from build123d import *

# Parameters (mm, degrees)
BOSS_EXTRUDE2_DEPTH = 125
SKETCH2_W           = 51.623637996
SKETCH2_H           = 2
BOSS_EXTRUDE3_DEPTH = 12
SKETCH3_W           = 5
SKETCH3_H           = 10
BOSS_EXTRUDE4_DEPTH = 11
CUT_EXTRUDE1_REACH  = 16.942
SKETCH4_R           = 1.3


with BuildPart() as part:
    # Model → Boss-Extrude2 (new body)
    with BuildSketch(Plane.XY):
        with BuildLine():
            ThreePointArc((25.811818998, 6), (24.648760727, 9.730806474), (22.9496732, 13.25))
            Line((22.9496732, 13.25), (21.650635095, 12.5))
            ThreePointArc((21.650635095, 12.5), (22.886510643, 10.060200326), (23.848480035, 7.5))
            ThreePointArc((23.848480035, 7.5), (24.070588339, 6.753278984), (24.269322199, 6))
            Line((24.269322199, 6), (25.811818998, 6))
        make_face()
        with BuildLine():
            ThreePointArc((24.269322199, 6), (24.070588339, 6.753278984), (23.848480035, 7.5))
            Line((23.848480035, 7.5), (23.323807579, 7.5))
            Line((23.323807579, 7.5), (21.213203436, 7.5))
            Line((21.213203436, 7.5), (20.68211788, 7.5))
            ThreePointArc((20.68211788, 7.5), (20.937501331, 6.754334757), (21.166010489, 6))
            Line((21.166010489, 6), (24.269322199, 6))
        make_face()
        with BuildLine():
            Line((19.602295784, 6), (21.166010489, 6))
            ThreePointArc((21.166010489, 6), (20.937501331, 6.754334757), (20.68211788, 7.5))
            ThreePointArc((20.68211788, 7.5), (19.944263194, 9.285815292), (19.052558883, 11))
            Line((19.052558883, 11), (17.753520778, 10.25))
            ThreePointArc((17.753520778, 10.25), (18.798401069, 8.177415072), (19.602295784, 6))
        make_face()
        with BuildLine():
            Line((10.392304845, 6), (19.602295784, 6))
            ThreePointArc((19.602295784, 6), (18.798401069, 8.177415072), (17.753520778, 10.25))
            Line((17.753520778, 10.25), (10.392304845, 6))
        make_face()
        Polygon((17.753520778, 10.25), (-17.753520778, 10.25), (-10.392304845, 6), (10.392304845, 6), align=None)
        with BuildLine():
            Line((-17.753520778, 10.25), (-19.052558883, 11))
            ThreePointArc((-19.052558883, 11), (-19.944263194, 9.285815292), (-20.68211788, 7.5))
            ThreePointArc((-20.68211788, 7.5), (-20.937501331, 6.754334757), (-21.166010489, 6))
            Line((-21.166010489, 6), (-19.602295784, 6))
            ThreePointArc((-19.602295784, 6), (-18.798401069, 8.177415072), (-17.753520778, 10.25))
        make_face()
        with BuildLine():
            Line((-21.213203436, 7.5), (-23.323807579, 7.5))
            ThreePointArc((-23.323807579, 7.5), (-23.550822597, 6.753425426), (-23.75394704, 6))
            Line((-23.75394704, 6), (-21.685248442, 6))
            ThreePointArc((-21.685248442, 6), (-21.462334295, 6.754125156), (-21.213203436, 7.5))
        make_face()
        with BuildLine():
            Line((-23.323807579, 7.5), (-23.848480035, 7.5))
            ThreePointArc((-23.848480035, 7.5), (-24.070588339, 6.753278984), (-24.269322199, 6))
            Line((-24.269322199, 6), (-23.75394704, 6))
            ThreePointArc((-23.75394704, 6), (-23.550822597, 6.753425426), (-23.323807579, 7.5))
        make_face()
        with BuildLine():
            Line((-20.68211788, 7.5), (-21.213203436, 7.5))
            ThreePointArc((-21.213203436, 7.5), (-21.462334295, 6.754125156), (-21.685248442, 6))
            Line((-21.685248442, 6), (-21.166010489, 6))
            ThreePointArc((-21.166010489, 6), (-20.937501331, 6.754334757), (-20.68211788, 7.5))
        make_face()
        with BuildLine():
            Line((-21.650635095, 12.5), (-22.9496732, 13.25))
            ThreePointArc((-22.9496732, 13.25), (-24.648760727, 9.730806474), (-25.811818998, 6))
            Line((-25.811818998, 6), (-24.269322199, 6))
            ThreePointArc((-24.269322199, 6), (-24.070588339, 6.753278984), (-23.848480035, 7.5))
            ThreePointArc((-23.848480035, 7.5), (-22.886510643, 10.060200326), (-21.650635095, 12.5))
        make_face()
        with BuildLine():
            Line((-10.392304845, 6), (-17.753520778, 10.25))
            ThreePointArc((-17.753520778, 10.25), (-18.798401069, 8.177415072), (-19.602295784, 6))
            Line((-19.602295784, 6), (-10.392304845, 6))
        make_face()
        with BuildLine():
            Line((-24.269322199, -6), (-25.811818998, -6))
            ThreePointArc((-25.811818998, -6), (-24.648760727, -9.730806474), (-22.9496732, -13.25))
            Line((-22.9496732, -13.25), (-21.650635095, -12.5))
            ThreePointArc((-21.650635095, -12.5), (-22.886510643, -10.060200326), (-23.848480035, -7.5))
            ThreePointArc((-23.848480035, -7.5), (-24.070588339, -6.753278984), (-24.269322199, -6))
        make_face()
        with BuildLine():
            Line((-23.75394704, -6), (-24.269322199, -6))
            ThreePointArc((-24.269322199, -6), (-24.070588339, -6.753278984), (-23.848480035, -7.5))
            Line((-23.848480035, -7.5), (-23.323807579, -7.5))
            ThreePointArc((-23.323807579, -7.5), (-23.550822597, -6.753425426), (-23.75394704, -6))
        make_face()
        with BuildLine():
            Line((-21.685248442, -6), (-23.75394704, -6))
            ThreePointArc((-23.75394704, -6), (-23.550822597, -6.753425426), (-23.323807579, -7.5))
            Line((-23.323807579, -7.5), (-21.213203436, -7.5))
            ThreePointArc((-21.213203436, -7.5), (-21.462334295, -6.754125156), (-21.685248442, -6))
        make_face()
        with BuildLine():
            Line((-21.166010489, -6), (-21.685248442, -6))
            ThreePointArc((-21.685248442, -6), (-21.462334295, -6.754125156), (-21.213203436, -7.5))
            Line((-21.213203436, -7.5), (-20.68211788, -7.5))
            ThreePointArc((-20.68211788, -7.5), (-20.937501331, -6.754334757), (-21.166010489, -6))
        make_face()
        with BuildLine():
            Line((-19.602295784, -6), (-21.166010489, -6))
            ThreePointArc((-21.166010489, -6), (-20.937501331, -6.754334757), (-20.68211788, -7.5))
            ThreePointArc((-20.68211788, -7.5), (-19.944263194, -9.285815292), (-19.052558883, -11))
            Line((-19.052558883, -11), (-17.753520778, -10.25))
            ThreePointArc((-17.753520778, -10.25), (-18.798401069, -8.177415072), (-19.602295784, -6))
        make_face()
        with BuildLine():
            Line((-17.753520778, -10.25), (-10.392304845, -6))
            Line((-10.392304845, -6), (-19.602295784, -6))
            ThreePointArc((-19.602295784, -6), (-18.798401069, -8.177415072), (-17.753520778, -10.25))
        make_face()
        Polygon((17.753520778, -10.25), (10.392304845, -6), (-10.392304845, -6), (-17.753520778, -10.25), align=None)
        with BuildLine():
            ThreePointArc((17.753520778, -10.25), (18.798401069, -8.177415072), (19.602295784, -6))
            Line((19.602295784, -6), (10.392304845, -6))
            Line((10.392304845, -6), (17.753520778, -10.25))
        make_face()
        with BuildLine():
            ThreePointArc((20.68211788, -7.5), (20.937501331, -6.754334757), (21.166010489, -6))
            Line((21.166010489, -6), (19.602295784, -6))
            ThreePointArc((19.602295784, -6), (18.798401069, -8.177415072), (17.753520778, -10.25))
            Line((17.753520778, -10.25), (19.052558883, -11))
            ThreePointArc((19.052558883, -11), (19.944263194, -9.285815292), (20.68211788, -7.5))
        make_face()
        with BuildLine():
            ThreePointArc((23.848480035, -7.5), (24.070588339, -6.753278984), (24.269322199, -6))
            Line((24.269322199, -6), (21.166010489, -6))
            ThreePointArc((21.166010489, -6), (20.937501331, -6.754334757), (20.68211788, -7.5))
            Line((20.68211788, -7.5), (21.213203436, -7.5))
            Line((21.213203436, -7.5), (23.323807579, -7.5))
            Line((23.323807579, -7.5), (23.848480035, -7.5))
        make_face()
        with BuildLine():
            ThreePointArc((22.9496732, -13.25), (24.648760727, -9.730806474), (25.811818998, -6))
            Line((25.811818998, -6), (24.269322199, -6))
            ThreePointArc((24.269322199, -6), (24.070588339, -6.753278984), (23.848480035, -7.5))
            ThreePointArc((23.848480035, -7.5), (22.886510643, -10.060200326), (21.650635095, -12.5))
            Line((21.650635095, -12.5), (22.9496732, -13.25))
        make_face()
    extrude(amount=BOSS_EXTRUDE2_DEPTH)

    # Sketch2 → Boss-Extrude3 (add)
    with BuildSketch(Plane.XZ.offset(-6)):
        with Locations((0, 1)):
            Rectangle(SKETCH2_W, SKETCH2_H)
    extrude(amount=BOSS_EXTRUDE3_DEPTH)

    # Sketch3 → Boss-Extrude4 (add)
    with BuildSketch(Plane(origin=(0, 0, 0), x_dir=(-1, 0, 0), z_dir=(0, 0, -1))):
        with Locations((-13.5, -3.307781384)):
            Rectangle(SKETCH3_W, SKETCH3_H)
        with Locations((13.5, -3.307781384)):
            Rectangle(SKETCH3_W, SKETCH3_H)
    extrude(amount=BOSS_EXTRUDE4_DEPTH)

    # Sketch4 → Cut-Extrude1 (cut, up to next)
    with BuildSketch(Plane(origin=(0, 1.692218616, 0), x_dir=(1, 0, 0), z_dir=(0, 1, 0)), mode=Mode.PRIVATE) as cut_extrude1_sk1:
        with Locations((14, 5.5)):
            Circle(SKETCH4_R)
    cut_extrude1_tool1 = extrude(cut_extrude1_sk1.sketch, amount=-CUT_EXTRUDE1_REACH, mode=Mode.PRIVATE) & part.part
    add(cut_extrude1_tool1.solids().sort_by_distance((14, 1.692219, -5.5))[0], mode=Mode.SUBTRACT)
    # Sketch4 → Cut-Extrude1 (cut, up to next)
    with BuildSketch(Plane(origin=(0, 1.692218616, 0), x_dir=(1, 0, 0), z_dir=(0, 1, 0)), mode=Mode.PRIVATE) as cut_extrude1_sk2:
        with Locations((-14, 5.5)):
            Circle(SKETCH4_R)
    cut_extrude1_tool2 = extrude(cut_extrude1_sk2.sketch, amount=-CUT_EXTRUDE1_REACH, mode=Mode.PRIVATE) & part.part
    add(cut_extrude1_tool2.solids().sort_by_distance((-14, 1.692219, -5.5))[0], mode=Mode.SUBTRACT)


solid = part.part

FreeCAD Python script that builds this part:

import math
import FreeCAD as App
import Part
import Sketcher
from FreeCAD import Vector
Q = App.Units.Quantity

doc = App.newDocument("Part")
params = doc.addObject("Spreadsheet::Sheet", "Params")
for row, (alias, value) in enumerate([
    ("sketch1_radius", "25 mm"),
    ("sketch1_radius2", "22 mm"),
    ("sketch1_radius3", "26.5 mm"),
    ("pad1_length", "125 mm"),
    ("sketch2_height", "2 mm"),
    ("pad2_length", "12 mm"),
    ("sketch3_width", "5 mm"),
    ("sketch3_height", "10 mm"),
    ("pad3_length", "11 mm"),
    ("sketch4_diameter", "2.6 mm"),
    ("sketch5_diameter", "2.6 mm"),
], start=1):
    params.set(f"A{row}", alias)
    params.set(f"B{row}", "=" + value)
    params.setAlias(f"B{row}", alias)

body = doc.addObject("PartDesign::Body", "Body")
body.AllowCompound = True

sketch1 = body.newObject("Sketcher::SketchObject", "Sketch")
sketch1.AttachmentSupport = (doc.getObject("XY_Plane"), [""])
sketch1.MapMode = "FlatFace"
sketch1.addGeometry([
    Part.ArcOfCircle(Part.Circle(Vector(0, 0, 0), Vector(0, 0, 1), 26.5), math.radians(13.09), math.radians(30)),
    Part.LineSegment(Vector(22.9, 13.2, 0), Vector(21.7, 12.5, 0)),
    Part.ArcOfCircle(Part.Circle(Vector(0, 0, 0), Vector(0, 0, 1), 25), math.radians(17.46), math.radians(30)),
    Part.LineSegment(Vector(23.8, 7.5, 0), Vector(20.7, 7.5, 0)),
    Part.ArcOfCircle(Part.Circle(Vector(0, 0, 0), Vector(0, 0, 1), 22), math.radians(19.93), math.radians(30)),
    Part.LineSegment(Vector(19.1, 11, 0), Vector(17.8, 10.2, 0)),
    Part.LineSegment(Vector(17.8, 10.2, 0), Vector(-17.8, 10.2, 0)),
    Part.LineSegment(Vector(-17.8, 10.2, 0), Vector(-19.1, 11, 0)),
    Part.ArcOfCircle(Part.Circle(Vector(0, 0, 0), Vector(0, 0, 1), 22), math.radians(150), math.radians(160.07)),
    Part.LineSegment(Vector(-20.7, 7.5, 0), Vector(-23.8, 7.5, 0)),
    Part.ArcOfCircle(Part.Circle(Vector(0, 0, 0), Vector(0, 0, 1), 25), math.radians(150), math.radians(162.54)),
    Part.LineSegment(Vector(-21.7, 12.5, 0), Vector(-22.9, 13.2, 0)),
    Part.ArcOfCircle(Part.Circle(Vector(0, 0, 0), Vector(0, 0, 1), 26.5), math.radians(150), math.radians(166.91)),
    Part.LineSegment(Vector(-25.8, 6, 0), Vector(25.8, 6, 0)),
    Part.ArcOfCircle(Part.Circle(Vector(0, 0, 0), Vector(0, 0, 1), 26.5), math.radians(-166.91), math.radians(-150)),
    Part.LineSegment(Vector(-22.9, -13.2, 0), Vector(-21.7, -12.5, 0)),
    Part.ArcOfCircle(Part.Circle(Vector(0, 0, 0), Vector(0, 0, 1), 25), math.radians(-162.54), math.radians(-150)),
    Part.LineSegment(Vector(-23.8, -7.5, 0), Vector(-20.7, -7.5, 0)),
    Part.ArcOfCircle(Part.Circle(Vector(0, 0, 0), Vector(0, 0, 1), 22), math.radians(-160.07), math.radians(-150)),
    Part.LineSegment(Vector(-19.1, -11, 0), Vector(-17.8, -10.2, 0)),
    Part.LineSegment(Vector(-17.8, -10.2, 0), Vector(17.8, -10.2, 0)),
    Part.LineSegment(Vector(17.8, -10.2, 0), Vector(19.1, -11, 0)),
    Part.ArcOfCircle(Part.Circle(Vector(0, 0, 0), Vector(0, 0, 1), 22), math.radians(-30), math.radians(-19.93)),
    Part.LineSegment(Vector(20.7, -7.5, 0), Vector(23.8, -7.5, 0)),
    Part.ArcOfCircle(Part.Circle(Vector(0, 0, 0), Vector(0, 0, 1), 25), math.radians(-30), math.radians(-17.46)),
    Part.LineSegment(Vector(21.7, -12.5, 0), Vector(22.9, -13.2, 0)),
    Part.ArcOfCircle(Part.Circle(Vector(0, 0, 0), Vector(0, 0, 1), 26.5), math.radians(-30), math.radians(-13.09)),
    Part.LineSegment(Vector(25.8, -6, 0), Vector(-25.8, -6, 0)),
], False)
sketch1.addConstraint([
    Sketcher.Constraint("Coincident", 0, 2, 1, 1),
    Sketcher.Constraint("Coincident", 1, 2, 2, 2),
    Sketcher.Constraint("Coincident", 2, 1, 3, 1),
    Sketcher.Constraint("Coincident", 3, 2, 4, 1),
    Sketcher.Constraint("Coincident", 4, 2, 5, 1),
    Sketcher.Constraint("Coincident", 5, 2, 6, 1),
    Sketcher.Constraint("Coincident", 6, 2, 7, 1),
    Sketcher.Constraint("Coincident", 7, 2, 8, 1),
    Sketcher.Constraint("Coincident", 8, 2, 9, 1),
    Sketcher.Constraint("Coincident", 9, 2, 10, 2),
    Sketcher.Constraint("Coincident", 10, 1, 11, 1),
    Sketcher.Constraint("Coincident", 11, 2, 12, 1),
    Sketcher.Constraint("Coincident", 12, 2, 13, 1),
    Sketcher.Constraint("Coincident", 13, 2, 0, 1),
    Sketcher.Constraint("Coincident", 14, 2, 15, 1),
    Sketcher.Constraint("Coincident", 15, 2, 16, 2),
    Sketcher.Constraint("Coincident", 16, 1, 17, 1),
    Sketcher.Constraint("Coincident", 17, 2, 18, 1),
    Sketcher.Constraint("Coincident", 18, 2, 19, 1),
    Sketcher.Constraint("Coincident", 19, 2, 20, 1),
    Sketcher.Constraint("Coincident", 20, 2, 21, 1),
    Sketcher.Constraint("Coincident", 21, 2, 22, 1),
    Sketcher.Constraint("Coincident", 22, 2, 23, 1),
    Sketcher.Constraint("Coincident", 23, 2, 24, 2),
    Sketcher.Constraint("Coincident", 24, 1, 25, 1),
    Sketcher.Constraint("Coincident", 25, 2, 26, 1),
    Sketcher.Constraint("Coincident", 26, 2, 27, 1),
    Sketcher.Constraint("Coincident", 27, 2, 14, 1),
    Sketcher.Constraint("Horizontal", 3),
    Sketcher.Constraint("Horizontal", 6),
    Sketcher.Constraint("Horizontal", 9),
    Sketcher.Constraint("Horizontal", 13),
    Sketcher.Constraint("Horizontal", 17),
    Sketcher.Constraint("Horizontal", 20),
    Sketcher.Constraint("Horizontal", 23),
    Sketcher.Constraint("Horizontal", 27),
    Sketcher.Constraint("Coincident", 0, 3, -1, 1),
    Sketcher.Constraint("Coincident", 2, 3, -1, 1),
    Sketcher.Constraint("Coincident", 4, 3, -1, 1),
    Sketcher.Constraint("Coincident", 8, 3, -1, 1),
    Sketcher.Constraint("Coincident", 10, 3, -1, 1),
    Sketcher.Constraint("Coincident", 12, 3, -1, 1),
    Sketcher.Constraint("Coincident", 14, 3, -1, 1),
    Sketcher.Constraint("Coincident", 16, 3, -1, 1),
    Sketcher.Constraint("Coincident", 18, 3, -1, 1),
    Sketcher.Constraint("Coincident", 22, 3, -1, 1),
    Sketcher.Constraint("Coincident", 24, 3, -1, 1),
    Sketcher.Constraint("Coincident", 26, 3, -1, 1),
    Sketcher.Constraint("Equal", 4, 8),
    Sketcher.Constraint("Equal", 2, 10),
    Sketcher.Constraint("Equal", 0, 12),
    Sketcher.Constraint("Equal", 12, 14),
    Sketcher.Constraint("Equal", 10, 16),
    Sketcher.Constraint("Equal", 8, 18),
    Sketcher.Constraint("Equal", 18, 22),
    Sketcher.Constraint("Equal", 16, 24),
    Sketcher.Constraint("Equal", 14, 26),
    Sketcher.Constraint("Symmetric", 5, 2, 19, 2, -1, 1),
    Sketcher.Constraint("Parallel", 1, 5),
    Sketcher.Constraint("Parallel", 7, 11),
    Sketcher.Constraint("Parallel", 5, 15),
    Sketcher.Constraint("Parallel", 15, 19),
    Sketcher.Constraint("Parallel", 11, 21),
    Sketcher.Constraint("Parallel", 21, 25),
    Sketcher.Constraint("Horizontal", 4, 2, 7, 2),
    Sketcher.Constraint("Horizontal", 3, 2, 8, 2),
    Sketcher.Constraint("Horizontal", 1, 2, 10, 1),
    Sketcher.Constraint("Horizontal", 0, 2, 11, 2),
    Sketcher.Constraint("Horizontal", 18, 2, 21, 2),
    Sketcher.Constraint("Horizontal", 17, 2, 22, 2),
    Sketcher.Constraint("Horizontal", 15, 2, 24, 1),
    Sketcher.Constraint("Vertical", 11, 2, 14, 2),
    Sketcher.Constraint("Vertical", 9, 2, 16, 1),
    Sketcher.Constraint("Vertical", 13, 2, 26, 2),
    Sketcher.Constraint("Equal", 1, 5),
    Sketcher.Constraint("Radius", 2, Q("25 mm")),
    Sketcher.Constraint("Radius", 4, Q("22 mm")),
    Sketcher.Constraint("Radius", 0, Q("26.5 mm")),
    Sketcher.Constraint("Angle", 1, Q("-150 deg")),
    Sketcher.Constraint("DistanceY", -1, 1, 4, 2, Q("11 mm")),
    Sketcher.Constraint("DistanceY", -1, 1, 12, 2, Q("6 mm")),
    Sketcher.Constraint("DistanceY", 2, 1, 1, 2, Q("5 mm")),
    Sketcher.Constraint("DistanceY", 5, 2, 0, 2, Q("3 mm")),
])
sketch1.setExpression("Constraints[75]", "Params.sketch1_radius")
sketch1.setExpression("Constraints[76]", "Params.sketch1_radius2")
sketch1.setExpression("Constraints[77]", "Params.sketch1_radius3")
pad1 = body.newObject("PartDesign::Pad", "Pad")
pad1.Profile = sketch1
pad1.setExpression("Length", "Params.pad1_length")

sketch2 = body.newObject("Sketcher::SketchObject", "Sketch001")
sketch2.AttachmentSupport = (doc.getObject("XZ_Plane"), [""])
sketch2.MapMode = "FlatFace"
sketch2.AttachmentOffset = App.Placement(Vector(0, 0, -6), App.Rotation())
sketch2.addGeometry([
    Part.LineSegment(Vector(-25.8, 2, 0), Vector(-25.8, 0, 0)),
    Part.LineSegment(Vector(-25.8, 0, 0), Vector(25.8, 0, 0)),
    Part.LineSegment(Vector(25.8, 0, 0), Vector(25.8, 2, 0)),
    Part.LineSegment(Vector(25.8, 2, 0), Vector(-25.8, 2, 0)),
], False)
sketch2.addConstraint([
    Sketcher.Constraint("Coincident", 0, 2, 1, 1),
    Sketcher.Constraint("Coincident", 1, 2, 2, 1),
    Sketcher.Constraint("Coincident", 2, 2, 3, 1),
    Sketcher.Constraint("Coincident", 3, 2, 0, 1),
    Sketcher.Constraint("Vertical", 0),
    Sketcher.Constraint("Horizontal", 1),
    Sketcher.Constraint("Vertical", 2),
    Sketcher.Constraint("Horizontal", 3),
    Sketcher.Constraint("Symmetric", 0, 2, 1, 2, -1, 1),
    Sketcher.Constraint("DistanceY", 0, 2, 0, 1, Q("2 mm")),
    Sketcher.Constraint("DistanceX", 1, 1, 1, 2, Q("51.623638 mm")),
])
sketch2.setExpression("Constraints[9]", "Params.sketch2_height")
pad2 = body.newObject("PartDesign::Pad", "Pad001")
pad2.Profile = sketch2
pad2.setExpression("Length", "Params.pad2_length")

sketch3 = body.newObject("Sketcher::SketchObject", "Sketch002")
sketch3.AttachmentSupport = (doc.getObject("XY_Plane"), [""])
sketch3.MapMode = "FlatFace"
sketch3.addGeometry([
    Part.LineSegment(Vector(16, 2, 0), Vector(16, -8, 0)),
    Part.LineSegment(Vector(16, -8, 0), Vector(11, -8, 0)),
    Part.LineSegment(Vector(11, -8, 0), Vector(11, 2, 0)),
    Part.LineSegment(Vector(11, 2, 0), Vector(16, 2, 0)),
    Part.LineSegment(Vector(-11, 2, 0), Vector(-11, -8, 0)),
    Part.LineSegment(Vector(-11, -8, 0), Vector(-16, -8, 0)),
    Part.LineSegment(Vector(-16, -8, 0), Vector(-16, 2, 0)),
    Part.LineSegment(Vector(-16, 2, 0), Vector(-11, 2, 0)),
], False)
sketch3.addConstraint([
    Sketcher.Constraint("Coincident", 0, 2, 1, 1),
    Sketcher.Constraint("Coincident", 1, 2, 2, 1),
    Sketcher.Constraint("Coincident", 2, 2, 3, 1),
    Sketcher.Constraint("Coincident", 3, 2, 0, 1),
    Sketcher.Constraint("Coincident", 4, 2, 5, 1),
    Sketcher.Constraint("Coincident", 5, 2, 6, 1),
    Sketcher.Constraint("Coincident", 6, 2, 7, 1),
    Sketcher.Constraint("Coincident", 7, 2, 4, 1),
    Sketcher.Constraint("Vertical", 0),
    Sketcher.Constraint("Horizontal", 1),
    Sketcher.Constraint("Vertical", 2),
    Sketcher.Constraint("Horizontal", 3),
    Sketcher.Constraint("Vertical", 4),
    Sketcher.Constraint("Horizontal", 5),
    Sketcher.Constraint("Vertical", 6),
    Sketcher.Constraint("Horizontal", 7),
    Sketcher.Constraint("Symmetric", 1, 2, 4, 2, -2),
    Sketcher.Constraint("Symmetric", 3, 2, 6, 2, -2),
    Sketcher.Constraint("DistanceX", 1, 2, 1, 1, Q("5 mm")),
    Sketcher.Constraint("DistanceY", 0, 2, 0, 1, Q("10 mm")),
    Sketcher.Constraint("DistanceX", -1, 1, 0, 2, Q("16 mm")),
    Sketcher.Constraint("DistanceY", 0, 2, -1, 1, Q("8.307781 mm")),
])
sketch3.setExpression("Constraints[18]", "Params.sketch3_width")
sketch3.setExpression("Constraints[19]", "Params.sketch3_height")
pad3 = body.newObject("PartDesign::Pad", "Pad002")
pad3.Profile = sketch3
pad3.setExpression("Length", "Params.pad3_length")
pad3.Reversed = True

sketch4 = body.newObject("Sketcher::SketchObject", "Sketch003")
sketch4.AttachmentSupport = (doc.getObject("XZ_Plane"), [""])
sketch4.MapMode = "FlatFace"
sketch4.AttachmentOffset = App.Placement(Vector(0, 0, -1.692219), App.Rotation())
sketch4.addGeometry(Part.Circle(Vector(14, -5.5, 0), Vector(0, 0, 1), 1.3), False)
sketch4.addConstraint([
    Sketcher.Constraint("Diameter", 0, Q("2.6 mm")),
    Sketcher.Constraint("DistanceX", -1, 1, 0, 3, Q("14 mm")),
    Sketcher.Constraint("DistanceY", 0, 3, -1, 1, Q("5.5 mm")),
])
sketch4.setExpression("Constraints[0]", "Params.sketch4_diameter")
pocket1 = body.newObject("PartDesign::Pocket", "Pocket")
pocket1.Profile = sketch4
pocket1.Type = "UpToFirst"
pocket1.Reversed = True

sketch5 = body.newObject("Sketcher::SketchObject", "Sketch004")
sketch5.AttachmentSupport = (doc.getObject("XZ_Plane"), [""])
sketch5.MapMode = "FlatFace"
sketch5.AttachmentOffset = App.Placement(Vector(0, 0, -1.692219), App.Rotation())
sketch5.addGeometry(Part.Circle(Vector(-14, -5.5, 0), Vector(0, 0, 1), 1.3), False)
sketch5.addConstraint([
    Sketcher.Constraint("Diameter", 0, Q("2.6 mm")),
    Sketcher.Constraint("DistanceX", 0, 3, -1, 1, Q("14 mm")),
    Sketcher.Constraint("DistanceY", 0, 3, -1, 1, Q("5.5 mm")),
])
sketch5.setExpression("Constraints[0]", "Params.sketch5_diameter")
pocket2 = body.newObject("PartDesign::Pocket", "Pocket001")
pocket2.Profile = sketch5
pocket2.Type = "UpToFirst"
pocket2.Reversed = True

doc.recompute()
